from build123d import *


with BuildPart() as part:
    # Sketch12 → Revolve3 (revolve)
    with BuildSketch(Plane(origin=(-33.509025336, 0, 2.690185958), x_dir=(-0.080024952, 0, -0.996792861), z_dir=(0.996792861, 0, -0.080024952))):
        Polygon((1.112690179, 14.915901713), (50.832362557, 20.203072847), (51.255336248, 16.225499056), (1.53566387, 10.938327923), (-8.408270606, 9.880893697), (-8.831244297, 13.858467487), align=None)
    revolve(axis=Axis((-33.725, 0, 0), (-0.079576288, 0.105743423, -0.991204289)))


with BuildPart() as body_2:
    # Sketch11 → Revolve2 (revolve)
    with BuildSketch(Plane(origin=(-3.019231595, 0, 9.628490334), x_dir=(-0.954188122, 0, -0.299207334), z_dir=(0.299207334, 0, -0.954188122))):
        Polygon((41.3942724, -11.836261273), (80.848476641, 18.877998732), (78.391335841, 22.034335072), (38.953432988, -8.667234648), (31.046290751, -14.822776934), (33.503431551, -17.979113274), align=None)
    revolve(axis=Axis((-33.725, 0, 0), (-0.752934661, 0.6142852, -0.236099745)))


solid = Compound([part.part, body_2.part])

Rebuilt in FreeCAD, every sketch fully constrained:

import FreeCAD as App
import Part
import Sketcher

V = App.Vector
Q = App.Units.Quantity

doc = App.newDocument("Part")
body = doc.addObject("PartDesign::Body", "Body")

# Sketch on an angled plane
sketch1 = body.newObject("Sketcher::SketchObject", "Sketch")
sketch1.Placement = App.Placement(V(-33.509025, 0, 2.690186), App.Rotation(V(-0.080024952, 0, -0.996792861), V(0, 1.000000001, 0), V(0.996792861, 0, -0.080024952), "ZXY"))
sketch1.addGeometry(Part.LineSegment(V(50.8, 20.2, 0), V(1.1, 14.9, 0)), False)
sketch1.addGeometry(Part.LineSegment(V(1.1, 14.9, 0), V(-8.8, 13.9, 0)), False)
sketch1.addGeometry(Part.LineSegment(V(-8.8, 13.9, 0), V(-8.4, 9.9, 0)), False)
sketch1.addGeometry(Part.LineSegment(V(-8.4, 9.9, 0), V(1.5, 10.9, 0)), False)
sketch1.addGeometry(Part.LineSegment(V(1.5, 10.9, 0), V(51.3, 16.2, 0)), False)
sketch1.addGeometry(Part.LineSegment(V(51.3, 16.2, 0), V(50.8, 20.2, 0)), False)
sketch1.addGeometry(Part.LineSegment(V(-7.2, -1.1, 0), V(52.4, 5.3, 0)), True)  # axis
sketch1.addConstraint(Sketcher.Constraint("Coincident", 0, 2, 1, 1))
sketch1.addConstraint(Sketcher.Constraint("Coincident", 1, 2, 2, 1))
sketch1.addConstraint(Sketcher.Constraint("Coincident", 2, 2, 3, 1))
sketch1.addConstraint(Sketcher.Constraint("Coincident", 3, 2, 4, 1))
sketch1.addConstraint(Sketcher.Constraint("Coincident", 4, 2, 5, 1))
sketch1.addConstraint(Sketcher.Constraint("Coincident", 5, 2, 0, 1))
sketch1.addConstraint(Sketcher.Constraint("Parallel", 0, 1))
sketch1.addConstraint(Sketcher.Constraint("Perpendicular", 1, 2))
sketch1.addConstraint(Sketcher.Constraint("Perpendicular", 2, 3))
sketch1.addConstraint(Sketcher.Constraint("Parallel", 3, 4))
sketch1.addConstraint(Sketcher.Constraint("Perpendicular", 4, 5))
sketch1.addConstraint(Sketcher.Constraint("Perpendicular", 5, 6))
sketch1.addConstraint(Sketcher.Constraint("Equal", 1, 3))
sketch1.addConstraint(Sketcher.Constraint("Distance", 0, Q("50 mm")))
sketch1.addConstraint(Sketcher.Constraint("Distance", 1, Q("10 mm")))
sketch1.addConstraint(Sketcher.Constraint("Distance", 2, Q("4 mm")))
sketch1.addConstraint(Sketcher.Constraint("Distance", 6, Q("60 mm")))
sketch1.addConstraint(Sketcher.Constraint("Angle", 0, Q("-173.93 deg")))
sketch1.addConstraint(Sketcher.Constraint("DistanceY", -1, 1, 0, 2, Q("14.915902 mm")))
sketch1.addConstraint(Sketcher.Constraint("DistanceY", 6, 1, 1, 2, Q("14.915902 mm")))
sketch1.addConstraint(Sketcher.Constraint("DistanceX", -1, 1, 0, 2, Q("1.11269 mm")))
sketch1.addConstraint(Sketcher.Constraint("DistanceX", 1, 2, 6, 1, Q("1.586151 mm")))
revolution = body.newObject("PartDesign::Revolution", "Revolution")
revolution.Profile = sketch1
revolution.ReferenceAxis = (sketch1, ["Axis0"])
revolution.Angle = 360
body2 = doc.addObject("PartDesign::Body", "Body001")

# Sketch on an angled plane
sketch2 = body2.newObject("Sketcher::SketchObject", "Sketch001")
sketch2.Placement = App.Placement(V(-3.019232, 0, 9.62849), App.Rotation(V(-0.954188122, 0, -0.299207334), V(0, 1.000000001, 0), V(0.299207334, 0, -0.954188122), "ZXY"))
sketch2.addGeometry(Part.LineSegment(V(41.4, -11.8, 0), V(80.8, 18.9, 0)), False)
sketch2.addGeometry(Part.LineSegment(V(80.8, 18.9, 0), V(78.4, 22, 0)), False)
sketch2.addGeometry(Part.LineSegment(V(78.4, 22, 0), V(39, -8.7, 0)), False)
sketch2.addGeometry(Part.LineSegment(V(39, -8.7, 0), V(31, -14.8, 0)), False)
sketch2.addGeometry(Part.LineSegment(V(31, -14.8, 0), V(33.5, -18, 0)), False)
sketch2.addGeometry(Part.LineSegment(V(33.5, -18, 0), V(41.4, -11.8, 0)), False)
sketch2.addGeometry(Part.LineSegment(V(24.3, -6.1, 0), V(71.6, 30.7, 0)), True)  # axis
sketch2.addConstraint(Sketcher.Constraint("Coincident", 0, 2, 1, 1))
sketch2.addConstraint(Sketcher.Constraint("Coincident", 1, 2, 2, 1))
sketch2.addConstraint(Sketcher.Constraint("Coincident", 2, 2, 3, 1))
sketch2.addConstraint(Sketcher.Constraint("Coincident", 3, 2, 4, 1))
sketch2.addConstraint(Sketcher.Constraint("Coincident", 4, 2, 5, 1))
sketch2.addConstraint(Sketcher.Constraint("Coincident", 5, 2, 0, 1))
sketch2.addConstraint(Sketcher.Constraint("Perpendicular", 0, 1))
sketch2.addConstraint(Sketcher.Constraint("Perpendicular", 1, 2))
sketch2.addConstraint(Sketcher.Constraint("Parallel", 2, 3))
sketch2.addConstraint(Sketcher.Constraint("Perpendicular", 3, 4))
sketch2.addConstraint(Sketcher.Constraint("Perpendicular", 4, 5))
sketch2.addConstraint(Sketcher.Constraint("Parallel", 5, 6))
sketch2.addConstraint(Sketcher.Constraint("Distance", 0, Q("50 mm")))
sketch2.addConstraint(Sketcher.Constraint("Distance", 1, Q("4 mm")))
sketch2.addConstraint(Sketcher.Constraint("Distance", 5, Q("10 mm")))
sketch2.addConstraint(Sketcher.Constraint("Distance", 6, Q("60 mm")))
sketch2.addConstraint(Sketcher.Constraint("Angle", 0, Q("37.9 deg")))
sketch2.addConstraint(Sketcher.Constraint("DistanceX", 4, 2, 2, 2, Q("5.450001 mm")))
sketch2.addConstraint(Sketcher.Constraint("DistanceY", -1, 1, 0, 2, Q("18.877999 mm")))
sketch2.addConstraint(Sketcher.Constraint("DistanceX", -1, 1, 6, 2, Q("71.634199 mm")))
sketch2.addConstraint(Sketcher.Constraint("DistanceX", -1, 1, 3, 2, Q("31.046291 mm")))
sketch2.addConstraint(Sketcher.Constraint("DistanceY", -1, 1, 6, 2, Q("30.71426 mm")))
revolution2 = body2.newObject("PartDesign::Revolution", "Revolution001")
revolution2.Profile = sketch2
revolution2.ReferenceAxis = (sketch2, ["Axis0"])
revolution2.Angle = 360

doc.recompute()
